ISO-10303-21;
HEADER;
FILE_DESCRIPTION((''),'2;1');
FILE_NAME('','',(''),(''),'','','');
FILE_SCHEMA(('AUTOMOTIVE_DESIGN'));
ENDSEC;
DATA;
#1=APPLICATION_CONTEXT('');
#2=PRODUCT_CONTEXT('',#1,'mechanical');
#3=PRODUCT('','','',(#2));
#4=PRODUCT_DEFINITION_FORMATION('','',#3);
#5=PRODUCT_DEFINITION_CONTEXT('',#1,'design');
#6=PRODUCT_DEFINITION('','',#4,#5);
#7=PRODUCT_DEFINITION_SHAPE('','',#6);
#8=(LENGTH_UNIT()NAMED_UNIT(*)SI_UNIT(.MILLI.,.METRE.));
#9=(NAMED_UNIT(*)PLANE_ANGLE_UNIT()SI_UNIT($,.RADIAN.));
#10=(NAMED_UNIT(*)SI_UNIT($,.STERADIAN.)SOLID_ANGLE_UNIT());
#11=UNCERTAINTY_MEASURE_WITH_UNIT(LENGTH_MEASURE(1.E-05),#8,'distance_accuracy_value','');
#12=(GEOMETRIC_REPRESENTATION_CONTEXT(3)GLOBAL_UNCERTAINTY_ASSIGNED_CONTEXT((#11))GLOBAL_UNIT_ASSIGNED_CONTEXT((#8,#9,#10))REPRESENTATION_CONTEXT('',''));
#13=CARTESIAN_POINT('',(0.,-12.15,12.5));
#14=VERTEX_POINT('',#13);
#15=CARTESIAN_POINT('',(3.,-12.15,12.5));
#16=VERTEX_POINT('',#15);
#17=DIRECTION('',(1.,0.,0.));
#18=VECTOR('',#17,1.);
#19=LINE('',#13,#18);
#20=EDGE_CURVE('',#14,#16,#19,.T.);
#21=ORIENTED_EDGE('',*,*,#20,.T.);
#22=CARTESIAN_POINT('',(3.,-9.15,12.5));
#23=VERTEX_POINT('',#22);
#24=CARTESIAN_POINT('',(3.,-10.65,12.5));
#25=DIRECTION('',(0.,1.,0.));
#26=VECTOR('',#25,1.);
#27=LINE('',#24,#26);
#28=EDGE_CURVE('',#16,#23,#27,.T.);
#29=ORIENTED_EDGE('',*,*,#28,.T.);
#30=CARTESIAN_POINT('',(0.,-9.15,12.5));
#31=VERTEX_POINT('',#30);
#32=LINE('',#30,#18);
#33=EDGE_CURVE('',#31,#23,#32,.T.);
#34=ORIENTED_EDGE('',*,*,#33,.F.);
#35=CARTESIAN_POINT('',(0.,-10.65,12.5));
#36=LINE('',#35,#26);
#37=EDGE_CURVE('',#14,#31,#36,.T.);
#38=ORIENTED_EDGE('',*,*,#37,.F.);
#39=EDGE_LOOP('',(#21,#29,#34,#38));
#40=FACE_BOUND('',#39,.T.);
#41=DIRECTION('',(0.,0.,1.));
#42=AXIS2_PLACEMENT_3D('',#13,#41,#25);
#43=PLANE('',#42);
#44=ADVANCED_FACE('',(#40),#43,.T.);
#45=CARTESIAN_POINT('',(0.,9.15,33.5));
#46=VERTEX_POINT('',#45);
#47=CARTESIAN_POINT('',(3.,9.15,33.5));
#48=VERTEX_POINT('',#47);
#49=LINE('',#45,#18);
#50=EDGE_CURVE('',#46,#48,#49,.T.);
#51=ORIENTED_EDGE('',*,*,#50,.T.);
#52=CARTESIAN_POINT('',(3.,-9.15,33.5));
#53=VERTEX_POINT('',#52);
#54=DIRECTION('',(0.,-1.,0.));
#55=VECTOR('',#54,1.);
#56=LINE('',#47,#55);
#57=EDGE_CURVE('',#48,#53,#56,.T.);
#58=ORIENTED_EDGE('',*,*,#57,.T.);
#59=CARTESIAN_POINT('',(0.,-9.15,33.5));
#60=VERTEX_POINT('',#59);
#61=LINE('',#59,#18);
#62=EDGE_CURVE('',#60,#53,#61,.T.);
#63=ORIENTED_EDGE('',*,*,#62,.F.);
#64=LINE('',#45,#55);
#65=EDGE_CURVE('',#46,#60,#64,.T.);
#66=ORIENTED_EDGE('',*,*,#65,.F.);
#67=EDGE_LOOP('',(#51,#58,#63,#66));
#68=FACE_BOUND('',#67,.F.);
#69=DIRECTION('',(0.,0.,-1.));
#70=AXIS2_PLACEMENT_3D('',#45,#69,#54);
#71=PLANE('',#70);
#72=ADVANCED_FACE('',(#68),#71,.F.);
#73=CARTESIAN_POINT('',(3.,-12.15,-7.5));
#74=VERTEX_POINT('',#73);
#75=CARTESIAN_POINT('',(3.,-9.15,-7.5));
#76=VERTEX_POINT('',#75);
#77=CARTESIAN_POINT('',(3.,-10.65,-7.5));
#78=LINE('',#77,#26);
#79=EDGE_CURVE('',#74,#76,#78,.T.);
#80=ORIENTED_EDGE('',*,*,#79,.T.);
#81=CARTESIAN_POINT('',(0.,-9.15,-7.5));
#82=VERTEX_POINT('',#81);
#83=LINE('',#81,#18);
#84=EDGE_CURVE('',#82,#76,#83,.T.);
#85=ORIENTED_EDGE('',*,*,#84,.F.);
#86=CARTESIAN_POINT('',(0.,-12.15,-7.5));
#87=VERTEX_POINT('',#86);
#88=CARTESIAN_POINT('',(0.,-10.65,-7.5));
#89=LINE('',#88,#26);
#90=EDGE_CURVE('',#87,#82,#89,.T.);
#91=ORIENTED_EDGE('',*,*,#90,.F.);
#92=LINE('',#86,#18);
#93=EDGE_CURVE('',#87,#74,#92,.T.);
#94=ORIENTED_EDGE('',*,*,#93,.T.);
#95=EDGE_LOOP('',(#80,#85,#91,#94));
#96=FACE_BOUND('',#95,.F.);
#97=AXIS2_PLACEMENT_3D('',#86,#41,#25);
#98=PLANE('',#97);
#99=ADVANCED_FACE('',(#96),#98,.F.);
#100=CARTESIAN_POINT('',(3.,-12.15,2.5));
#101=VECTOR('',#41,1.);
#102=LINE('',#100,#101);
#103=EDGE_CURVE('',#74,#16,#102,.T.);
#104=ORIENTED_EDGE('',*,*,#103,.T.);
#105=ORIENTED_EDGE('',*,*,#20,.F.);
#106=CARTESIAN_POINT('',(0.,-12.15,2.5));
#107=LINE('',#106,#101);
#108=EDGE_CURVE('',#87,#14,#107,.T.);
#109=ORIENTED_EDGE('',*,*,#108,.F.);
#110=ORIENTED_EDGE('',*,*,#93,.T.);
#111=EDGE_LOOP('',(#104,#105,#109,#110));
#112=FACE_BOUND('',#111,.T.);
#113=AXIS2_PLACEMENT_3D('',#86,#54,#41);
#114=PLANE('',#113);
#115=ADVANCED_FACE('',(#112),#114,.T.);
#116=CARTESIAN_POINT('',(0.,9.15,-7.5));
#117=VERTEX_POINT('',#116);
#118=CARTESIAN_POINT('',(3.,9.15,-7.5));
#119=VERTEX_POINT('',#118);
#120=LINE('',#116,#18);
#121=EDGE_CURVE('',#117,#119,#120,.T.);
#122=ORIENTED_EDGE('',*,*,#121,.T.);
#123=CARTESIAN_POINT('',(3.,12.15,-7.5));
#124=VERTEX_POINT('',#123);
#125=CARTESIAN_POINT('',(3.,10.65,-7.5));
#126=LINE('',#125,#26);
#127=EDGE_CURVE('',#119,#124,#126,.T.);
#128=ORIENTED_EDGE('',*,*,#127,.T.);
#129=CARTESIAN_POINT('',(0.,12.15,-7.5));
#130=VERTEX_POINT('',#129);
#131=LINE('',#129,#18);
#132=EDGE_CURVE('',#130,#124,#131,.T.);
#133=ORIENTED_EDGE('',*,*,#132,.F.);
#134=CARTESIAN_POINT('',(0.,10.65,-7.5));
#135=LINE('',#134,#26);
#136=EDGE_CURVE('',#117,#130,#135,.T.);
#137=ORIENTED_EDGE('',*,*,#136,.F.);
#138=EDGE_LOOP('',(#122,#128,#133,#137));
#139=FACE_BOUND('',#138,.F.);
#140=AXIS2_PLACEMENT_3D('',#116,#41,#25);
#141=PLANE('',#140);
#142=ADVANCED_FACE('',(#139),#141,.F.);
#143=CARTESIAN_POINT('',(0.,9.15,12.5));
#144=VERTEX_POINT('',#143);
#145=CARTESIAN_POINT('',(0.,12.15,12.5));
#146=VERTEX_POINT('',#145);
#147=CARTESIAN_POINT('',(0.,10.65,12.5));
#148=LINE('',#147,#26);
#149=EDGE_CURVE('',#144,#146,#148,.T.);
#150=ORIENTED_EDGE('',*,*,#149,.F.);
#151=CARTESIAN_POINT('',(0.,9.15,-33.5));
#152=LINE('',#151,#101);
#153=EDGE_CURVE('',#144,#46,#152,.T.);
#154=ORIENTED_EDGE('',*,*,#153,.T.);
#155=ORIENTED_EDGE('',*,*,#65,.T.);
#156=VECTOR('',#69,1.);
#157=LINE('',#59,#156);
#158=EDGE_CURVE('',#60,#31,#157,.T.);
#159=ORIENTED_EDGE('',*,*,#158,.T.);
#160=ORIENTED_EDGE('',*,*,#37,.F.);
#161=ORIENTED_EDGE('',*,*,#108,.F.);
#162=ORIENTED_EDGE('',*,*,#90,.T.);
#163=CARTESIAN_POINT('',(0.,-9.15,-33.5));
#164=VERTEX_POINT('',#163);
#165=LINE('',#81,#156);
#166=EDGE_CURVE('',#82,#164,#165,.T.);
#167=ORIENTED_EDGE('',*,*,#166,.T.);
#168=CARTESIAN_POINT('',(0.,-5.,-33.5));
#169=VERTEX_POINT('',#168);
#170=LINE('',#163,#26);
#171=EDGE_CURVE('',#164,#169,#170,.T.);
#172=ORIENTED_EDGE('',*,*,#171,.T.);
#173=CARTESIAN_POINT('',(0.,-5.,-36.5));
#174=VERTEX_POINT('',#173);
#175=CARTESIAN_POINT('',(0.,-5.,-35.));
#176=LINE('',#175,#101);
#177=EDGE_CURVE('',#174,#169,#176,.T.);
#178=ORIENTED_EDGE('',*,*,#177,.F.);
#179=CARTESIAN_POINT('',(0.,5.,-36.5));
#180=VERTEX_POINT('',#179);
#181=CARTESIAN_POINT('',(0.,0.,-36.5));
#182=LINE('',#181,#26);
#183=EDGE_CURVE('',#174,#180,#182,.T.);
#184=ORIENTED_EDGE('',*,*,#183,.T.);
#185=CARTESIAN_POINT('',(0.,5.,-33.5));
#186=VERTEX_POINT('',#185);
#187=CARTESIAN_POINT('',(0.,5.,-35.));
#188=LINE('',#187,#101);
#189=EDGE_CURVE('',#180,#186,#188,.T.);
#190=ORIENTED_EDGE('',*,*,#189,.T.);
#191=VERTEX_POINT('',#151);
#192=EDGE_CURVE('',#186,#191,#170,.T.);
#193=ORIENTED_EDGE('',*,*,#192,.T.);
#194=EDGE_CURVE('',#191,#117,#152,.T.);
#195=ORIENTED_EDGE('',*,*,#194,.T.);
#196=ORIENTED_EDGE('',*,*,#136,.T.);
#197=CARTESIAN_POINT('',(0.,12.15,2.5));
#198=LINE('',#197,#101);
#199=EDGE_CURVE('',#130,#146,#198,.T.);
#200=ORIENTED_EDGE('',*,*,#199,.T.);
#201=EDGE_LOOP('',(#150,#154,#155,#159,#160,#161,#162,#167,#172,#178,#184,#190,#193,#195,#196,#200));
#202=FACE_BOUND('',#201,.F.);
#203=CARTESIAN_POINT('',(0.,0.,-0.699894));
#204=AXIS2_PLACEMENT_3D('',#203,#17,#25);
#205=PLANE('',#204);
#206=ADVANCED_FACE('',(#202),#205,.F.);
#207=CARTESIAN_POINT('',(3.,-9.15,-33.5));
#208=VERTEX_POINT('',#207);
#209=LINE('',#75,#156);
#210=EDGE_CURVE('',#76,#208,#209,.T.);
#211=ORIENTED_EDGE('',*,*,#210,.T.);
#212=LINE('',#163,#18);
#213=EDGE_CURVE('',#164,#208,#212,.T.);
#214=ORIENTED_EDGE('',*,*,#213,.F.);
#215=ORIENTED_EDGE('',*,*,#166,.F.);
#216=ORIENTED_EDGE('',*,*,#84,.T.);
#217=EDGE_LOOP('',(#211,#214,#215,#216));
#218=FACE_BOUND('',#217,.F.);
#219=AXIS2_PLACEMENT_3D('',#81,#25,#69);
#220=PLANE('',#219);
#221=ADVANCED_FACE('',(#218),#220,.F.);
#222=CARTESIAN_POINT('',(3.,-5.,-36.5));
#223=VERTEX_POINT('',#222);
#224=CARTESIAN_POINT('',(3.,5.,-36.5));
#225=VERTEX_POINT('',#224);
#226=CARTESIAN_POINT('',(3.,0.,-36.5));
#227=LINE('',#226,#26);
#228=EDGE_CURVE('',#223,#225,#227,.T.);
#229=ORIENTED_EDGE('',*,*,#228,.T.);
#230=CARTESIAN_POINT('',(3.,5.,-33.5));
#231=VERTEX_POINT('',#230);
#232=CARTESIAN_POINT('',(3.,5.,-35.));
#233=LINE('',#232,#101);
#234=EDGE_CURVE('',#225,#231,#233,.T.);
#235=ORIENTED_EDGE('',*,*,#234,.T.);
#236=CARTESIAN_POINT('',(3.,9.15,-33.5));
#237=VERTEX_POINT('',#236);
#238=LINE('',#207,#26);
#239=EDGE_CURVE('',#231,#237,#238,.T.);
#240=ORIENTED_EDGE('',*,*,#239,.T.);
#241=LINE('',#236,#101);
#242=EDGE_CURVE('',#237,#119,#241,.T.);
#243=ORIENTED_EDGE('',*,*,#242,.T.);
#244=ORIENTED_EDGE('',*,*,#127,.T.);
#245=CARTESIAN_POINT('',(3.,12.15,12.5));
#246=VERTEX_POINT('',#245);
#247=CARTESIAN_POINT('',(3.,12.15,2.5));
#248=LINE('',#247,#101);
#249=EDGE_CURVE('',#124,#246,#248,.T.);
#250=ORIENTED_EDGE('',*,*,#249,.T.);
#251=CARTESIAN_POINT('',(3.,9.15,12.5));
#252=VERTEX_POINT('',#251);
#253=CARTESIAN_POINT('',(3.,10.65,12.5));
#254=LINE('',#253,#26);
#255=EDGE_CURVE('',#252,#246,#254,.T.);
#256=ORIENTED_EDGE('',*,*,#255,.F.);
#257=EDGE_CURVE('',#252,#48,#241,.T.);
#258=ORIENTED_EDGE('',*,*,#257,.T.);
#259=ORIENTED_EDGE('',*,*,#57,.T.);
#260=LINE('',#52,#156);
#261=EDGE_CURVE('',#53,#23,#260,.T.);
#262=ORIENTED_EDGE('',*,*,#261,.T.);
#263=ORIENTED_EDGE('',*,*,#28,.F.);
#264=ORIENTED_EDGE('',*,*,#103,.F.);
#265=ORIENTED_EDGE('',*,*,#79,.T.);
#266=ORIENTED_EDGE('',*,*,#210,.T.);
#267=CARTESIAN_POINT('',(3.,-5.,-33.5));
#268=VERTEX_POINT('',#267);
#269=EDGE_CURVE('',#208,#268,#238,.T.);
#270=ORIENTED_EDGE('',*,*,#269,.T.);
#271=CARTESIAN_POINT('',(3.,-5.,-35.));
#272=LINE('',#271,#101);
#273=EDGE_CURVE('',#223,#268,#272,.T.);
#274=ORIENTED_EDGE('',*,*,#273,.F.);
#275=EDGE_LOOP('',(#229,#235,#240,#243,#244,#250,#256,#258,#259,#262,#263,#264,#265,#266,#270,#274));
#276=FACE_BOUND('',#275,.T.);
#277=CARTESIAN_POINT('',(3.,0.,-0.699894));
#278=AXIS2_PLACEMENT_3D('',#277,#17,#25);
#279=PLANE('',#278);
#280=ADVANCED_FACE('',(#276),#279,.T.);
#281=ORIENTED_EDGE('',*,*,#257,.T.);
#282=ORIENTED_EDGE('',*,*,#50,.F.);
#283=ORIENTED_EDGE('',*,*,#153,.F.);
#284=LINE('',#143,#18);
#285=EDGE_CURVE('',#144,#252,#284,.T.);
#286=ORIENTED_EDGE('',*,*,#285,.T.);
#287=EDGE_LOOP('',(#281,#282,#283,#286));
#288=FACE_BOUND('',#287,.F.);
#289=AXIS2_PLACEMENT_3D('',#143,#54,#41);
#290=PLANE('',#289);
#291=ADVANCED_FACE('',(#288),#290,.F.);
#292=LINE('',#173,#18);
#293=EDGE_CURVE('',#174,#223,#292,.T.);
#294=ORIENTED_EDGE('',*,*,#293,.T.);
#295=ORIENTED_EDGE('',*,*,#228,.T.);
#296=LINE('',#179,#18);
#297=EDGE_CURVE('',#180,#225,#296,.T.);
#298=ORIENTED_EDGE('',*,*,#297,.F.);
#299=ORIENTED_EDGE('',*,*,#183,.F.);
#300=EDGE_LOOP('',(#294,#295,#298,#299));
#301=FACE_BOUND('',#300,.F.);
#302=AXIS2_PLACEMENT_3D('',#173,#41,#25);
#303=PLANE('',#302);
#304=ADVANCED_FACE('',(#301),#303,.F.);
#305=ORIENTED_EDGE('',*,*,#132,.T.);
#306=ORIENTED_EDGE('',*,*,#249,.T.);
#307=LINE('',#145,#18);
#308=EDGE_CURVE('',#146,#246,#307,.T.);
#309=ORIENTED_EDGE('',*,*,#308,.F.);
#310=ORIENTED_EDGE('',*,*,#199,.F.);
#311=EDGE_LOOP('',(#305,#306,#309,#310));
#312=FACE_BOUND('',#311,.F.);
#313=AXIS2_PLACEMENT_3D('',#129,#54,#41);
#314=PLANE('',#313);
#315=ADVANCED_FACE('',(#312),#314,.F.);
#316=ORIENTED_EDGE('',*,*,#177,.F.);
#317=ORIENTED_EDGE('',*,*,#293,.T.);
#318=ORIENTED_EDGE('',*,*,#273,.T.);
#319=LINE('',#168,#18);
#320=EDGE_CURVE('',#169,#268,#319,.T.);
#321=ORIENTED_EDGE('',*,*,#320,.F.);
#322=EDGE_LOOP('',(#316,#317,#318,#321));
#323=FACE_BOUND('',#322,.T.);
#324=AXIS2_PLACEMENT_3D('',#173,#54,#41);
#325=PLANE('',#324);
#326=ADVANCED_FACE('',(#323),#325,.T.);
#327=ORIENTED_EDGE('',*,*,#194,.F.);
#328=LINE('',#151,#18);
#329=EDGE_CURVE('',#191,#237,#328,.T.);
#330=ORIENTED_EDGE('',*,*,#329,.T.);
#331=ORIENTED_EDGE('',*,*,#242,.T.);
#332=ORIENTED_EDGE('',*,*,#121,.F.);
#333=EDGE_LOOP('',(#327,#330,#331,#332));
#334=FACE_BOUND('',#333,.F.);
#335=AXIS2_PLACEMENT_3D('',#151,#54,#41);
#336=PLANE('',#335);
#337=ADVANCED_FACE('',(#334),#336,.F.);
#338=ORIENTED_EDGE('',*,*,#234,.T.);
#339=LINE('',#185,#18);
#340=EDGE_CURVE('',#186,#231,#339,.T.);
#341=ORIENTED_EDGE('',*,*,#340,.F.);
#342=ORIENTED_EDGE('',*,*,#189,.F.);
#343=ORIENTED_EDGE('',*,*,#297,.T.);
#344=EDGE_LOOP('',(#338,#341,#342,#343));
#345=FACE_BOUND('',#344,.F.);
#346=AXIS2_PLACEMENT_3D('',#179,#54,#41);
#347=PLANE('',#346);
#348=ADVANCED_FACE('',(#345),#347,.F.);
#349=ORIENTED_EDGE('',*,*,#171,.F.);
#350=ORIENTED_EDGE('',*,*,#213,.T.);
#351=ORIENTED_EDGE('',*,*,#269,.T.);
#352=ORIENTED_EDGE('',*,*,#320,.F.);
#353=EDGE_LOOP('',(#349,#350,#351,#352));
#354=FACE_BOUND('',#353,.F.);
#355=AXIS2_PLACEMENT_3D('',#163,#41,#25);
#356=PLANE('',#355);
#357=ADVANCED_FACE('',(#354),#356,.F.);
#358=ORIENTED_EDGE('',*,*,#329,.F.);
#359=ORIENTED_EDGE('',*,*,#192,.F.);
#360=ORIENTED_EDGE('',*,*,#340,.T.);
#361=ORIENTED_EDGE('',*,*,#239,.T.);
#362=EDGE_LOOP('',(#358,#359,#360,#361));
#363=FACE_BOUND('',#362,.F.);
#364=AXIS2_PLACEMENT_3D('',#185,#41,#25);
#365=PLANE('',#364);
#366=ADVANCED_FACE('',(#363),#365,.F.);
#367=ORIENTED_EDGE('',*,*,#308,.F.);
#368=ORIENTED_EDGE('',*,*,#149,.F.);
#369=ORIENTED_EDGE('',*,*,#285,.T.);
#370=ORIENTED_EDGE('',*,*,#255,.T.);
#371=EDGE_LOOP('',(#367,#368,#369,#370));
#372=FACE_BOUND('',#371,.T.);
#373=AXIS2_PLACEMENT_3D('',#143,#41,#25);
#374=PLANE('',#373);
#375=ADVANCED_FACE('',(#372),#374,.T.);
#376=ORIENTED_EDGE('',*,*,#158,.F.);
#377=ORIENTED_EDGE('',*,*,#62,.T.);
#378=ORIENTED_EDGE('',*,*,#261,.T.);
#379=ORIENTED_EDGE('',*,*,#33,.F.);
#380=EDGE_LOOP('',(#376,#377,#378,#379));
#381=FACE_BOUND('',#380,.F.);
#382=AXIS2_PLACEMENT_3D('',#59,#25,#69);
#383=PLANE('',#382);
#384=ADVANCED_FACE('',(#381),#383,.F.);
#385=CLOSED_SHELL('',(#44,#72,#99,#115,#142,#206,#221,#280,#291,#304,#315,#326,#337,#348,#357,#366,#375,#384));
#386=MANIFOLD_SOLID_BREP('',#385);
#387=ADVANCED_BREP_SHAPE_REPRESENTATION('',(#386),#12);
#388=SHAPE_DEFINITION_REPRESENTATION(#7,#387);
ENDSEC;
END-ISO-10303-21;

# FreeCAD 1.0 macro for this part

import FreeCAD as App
import Part
import Sketcher

V = App.Vector
Q = App.Units.Quantity


def add_polygon(sketch, points):
    """Adds a closed chain of lines whose ends are joined by coincident constraints."""
    first, n = sketch.GeometryCount, len(points)
    for a, b in zip(points, points[1:] + points[:1]):
        sketch.addGeometry(Part.LineSegment(App.Vector(*a, 0), App.Vector(*b, 0)), False)
    for i in range(n):
        sketch.addConstraint(Sketcher.Constraint("Coincident", first + i, 2, first + (i + 1) % n, 1))

doc = App.newDocument("Part")
body = doc.addObject("PartDesign::Body", "Body")

# Sketch on YZ plane
sketch1 = body.newObject("Sketcher::SketchObject", "Sketch")
sketch1.AttachmentSupport = (doc.getObject("YZ_Plane"), [""])
sketch1.MapMode = "FlatFace"
add_polygon(sketch1, [(-9.2, -7.5), (-9.2, -33.5), (-5, -33.5), (-5, -36.5), (5, -36.5), (5, -33.5), (9.2, -33.5), (9.2, -7.5), (12.2, -7.5), (12.2, 12.5), (9.2, 12.5), (9.2, 33.5), (-9.2, 33.5), (-9.2, 12.5), (-12.2, 12.5), (-12.2, -7.5)])  # lines 0-15
sketch1.addConstraint(Sketcher.Constraint("Vertical", 0))
sketch1.addConstraint(Sketcher.Constraint("Horizontal", 1))
sketch1.addConstraint(Sketcher.Constraint("Vertical", 2))
sketch1.addConstraint(Sketcher.Constraint("Horizontal", 3))
sketch1.addConstraint(Sketcher.Constraint("Vertical", 4))
sketch1.addConstraint(Sketcher.Constraint("Horizontal", 5))
sketch1.addConstraint(Sketcher.Constraint("Vertical", 6))
sketch1.addConstraint(Sketcher.Constraint("Horizontal", 7))
sketch1.addConstraint(Sketcher.Constraint("Vertical", 8))
sketch1.addConstraint(Sketcher.Constraint("Horizontal", 9))
sketch1.addConstraint(Sketcher.Constraint("Vertical", 10))
sketch1.addConstraint(Sketcher.Constraint("Horizontal", 11))
sketch1.addConstraint(Sketcher.Constraint("Vertical", 12))
sketch1.addConstraint(Sketcher.Constraint("Horizontal", 13))
sketch1.addConstraint(Sketcher.Constraint("Vertical", 14))
sketch1.addConstraint(Sketcher.Constraint("Horizontal", 15))
sketch1.addConstraint(Sketcher.Constraint("Symmetric", 0, 2, 10, 2, -1, 1))
sketch1.addConstraint(Sketcher.Constraint("Symmetric", 5, 2, 11, 2, -1, 1))
sketch1.addConstraint(Sketcher.Constraint("Symmetric", 9, 2, 12, 2, -2))
sketch1.addConstraint(Sketcher.Constraint("Symmetric", 7, 2, 14, 2, -2))
sketch1.addConstraint(Sketcher.Constraint("Equal", 1, 5))
sketch1.addConstraint(Sketcher.Constraint("Equal", 15, 2))
sketch1.addConstraint(Sketcher.Constraint("DistanceX", 3, 1, 3, 2, Q("10 mm")))
sketch1.addConstraint(Sketcher.Constraint("DistanceX", 7, 1, 7, 2, Q("3 mm")))
sketch1.addConstraint(Sketcher.Constraint("DistanceY", 0, 2, 0, 1, Q("26 mm")))
sketch1.addConstraint(Sketcher.Constraint("DistanceY", 8, 1, 8, 2, Q("20 mm")))
sketch1.addConstraint(Sketcher.Constraint("DistanceY", 10, 1, 10, 2, Q("21 mm")))
sketch1.addConstraint(Sketcher.Constraint("DistanceX", 11, 2, 11, 1, Q("18.3 mm")))
pad1 = body.newObject("PartDesign::Pad", "Pad")
pad1.Profile = sketch1
pad1.Length = 3

doc.recompute()
